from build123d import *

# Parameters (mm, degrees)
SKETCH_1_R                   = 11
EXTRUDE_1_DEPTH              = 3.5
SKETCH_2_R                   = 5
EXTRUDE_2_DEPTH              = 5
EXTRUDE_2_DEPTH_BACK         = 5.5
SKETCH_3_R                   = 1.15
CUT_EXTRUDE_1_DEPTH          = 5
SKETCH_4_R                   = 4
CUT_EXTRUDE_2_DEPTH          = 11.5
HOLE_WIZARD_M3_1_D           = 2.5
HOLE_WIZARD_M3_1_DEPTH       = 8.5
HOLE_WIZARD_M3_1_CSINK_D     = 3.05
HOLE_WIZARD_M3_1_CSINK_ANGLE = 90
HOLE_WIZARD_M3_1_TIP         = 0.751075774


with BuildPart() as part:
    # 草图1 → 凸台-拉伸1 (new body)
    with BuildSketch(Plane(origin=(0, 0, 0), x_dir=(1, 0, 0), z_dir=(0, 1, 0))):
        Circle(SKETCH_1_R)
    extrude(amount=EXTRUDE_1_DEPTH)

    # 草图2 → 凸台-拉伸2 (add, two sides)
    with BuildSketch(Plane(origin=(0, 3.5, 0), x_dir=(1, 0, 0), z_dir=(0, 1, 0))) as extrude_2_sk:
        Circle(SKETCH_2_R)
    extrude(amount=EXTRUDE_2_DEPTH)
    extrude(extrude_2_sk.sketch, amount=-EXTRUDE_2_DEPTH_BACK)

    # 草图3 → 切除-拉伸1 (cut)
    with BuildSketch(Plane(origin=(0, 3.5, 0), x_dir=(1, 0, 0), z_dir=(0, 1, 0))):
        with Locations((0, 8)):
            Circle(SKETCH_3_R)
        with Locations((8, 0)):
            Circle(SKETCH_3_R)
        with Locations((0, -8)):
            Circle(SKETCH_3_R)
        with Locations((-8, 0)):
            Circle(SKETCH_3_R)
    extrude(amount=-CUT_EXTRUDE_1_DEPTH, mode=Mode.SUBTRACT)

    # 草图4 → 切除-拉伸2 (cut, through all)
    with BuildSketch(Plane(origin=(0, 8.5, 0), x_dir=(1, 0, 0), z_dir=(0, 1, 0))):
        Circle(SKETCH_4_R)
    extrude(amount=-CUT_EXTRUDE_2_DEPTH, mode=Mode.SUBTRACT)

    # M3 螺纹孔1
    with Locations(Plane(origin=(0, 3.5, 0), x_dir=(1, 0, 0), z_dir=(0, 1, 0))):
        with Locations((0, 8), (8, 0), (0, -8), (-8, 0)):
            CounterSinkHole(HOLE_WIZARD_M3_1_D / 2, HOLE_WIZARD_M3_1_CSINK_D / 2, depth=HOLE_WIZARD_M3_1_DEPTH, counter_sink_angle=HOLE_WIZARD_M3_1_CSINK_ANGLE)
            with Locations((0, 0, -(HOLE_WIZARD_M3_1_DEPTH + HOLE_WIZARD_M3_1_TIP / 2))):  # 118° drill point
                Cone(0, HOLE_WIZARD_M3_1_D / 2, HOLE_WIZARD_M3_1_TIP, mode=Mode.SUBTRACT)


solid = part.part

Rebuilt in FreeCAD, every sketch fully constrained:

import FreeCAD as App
import Part
import Sketcher

V = App.Vector
Q = App.Units.Quantity

doc = App.newDocument("Part")
body = doc.addObject("PartDesign::Body", "Body")

sketch1 = doc.addObject("Sketcher::SketchObject", "Sketch")
body.addObject(sketch1)
sketch1.AttachmentSupport = (doc.XZ_Plane, [""])
sketch1.MapMode = "FlatFace"
sketch1.addGeometry(Part.Circle(V(0, 0, 0), V(0, 0, 1), 11), False)
sketch1.addConstraint(Sketcher.Constraint("Coincident", 0, 3, -1, 1))
sketch1.addConstraint(Sketcher.Constraint("Diameter", 0, Q("22 mm")))
pad1 = doc.addObject("PartDesign::Pad", "Pad")
body.addObject(pad1)
pad1.Profile = sketch1
pad1.Length = 3.5
pad1.Reversed = True

sketch2 = doc.addObject("Sketcher::SketchObject", "Sketch001")
body.addObject(sketch2)
sketch2.AttachmentSupport = (doc.XZ_Plane, [""])
sketch2.MapMode = "FlatFace"
sketch2.AttachmentOffset = App.Placement(V(0, 0, -3.5), App.Rotation())
sketch2.addGeometry(Part.Circle(V(0, 0, 0), V(0, 0, 1), 5), False)
sketch2.addConstraint(Sketcher.Constraint("Coincident", 0, 3, -1, 1))
sketch2.addConstraint(Sketcher.Constraint("Diameter", 0, Q("10 mm")))
pad2 = doc.addObject("PartDesign::Pad", "Pad001")
body.addObject(pad2)
pad2.Profile = sketch2
pad2.Type = "TwoLengths"
pad2.Length = 5
pad2.Length2 = 5.5
pad2.Reversed = True

sketch3 = doc.addObject("Sketcher::SketchObject", "Sketch002")
body.addObject(sketch3)
sketch3.AttachmentSupport = (doc.XZ_Plane, [""])
sketch3.MapMode = "FlatFace"
sketch3.AttachmentOffset = App.Placement(V(0, 0, -3.5), App.Rotation())
sketch3.addGeometry(Part.Circle(V(0, -8, 0), V(0, 0, 1), 1.1), False)
sketch3.addGeometry(Part.Circle(V(8, 0, 0), V(0, 0, 1), 1.1), False)
sketch3.addGeometry(Part.Circle(V(0, 8, 0), V(0, 0, 1), 1.1), False)
sketch3.addGeometry(Part.Circle(V(-8, 0, 0), V(0, 0, 1), 1.1), False)
sketch3.addConstraint(Sketcher.Constraint("Equal", 0, 1))
sketch3.addConstraint(Sketcher.Constraint("Equal", 1, 2))
sketch3.addConstraint(Sketcher.Constraint("Equal", 2, 3))
sketch3.addConstraint(Sketcher.Constraint("Symmetric", 0, 3, 2, 3, -1, 1))
sketch3.addConstraint(Sketcher.Constraint("Symmetric", 1, 3, 3, 3, -1, 1))
sketch3.addConstraint(Sketcher.Constraint("PointOnObject", 0, 3, -2))
sketch3.addConstraint(Sketcher.Constraint("PointOnObject", 1, 3, -1))
sketch3.addConstraint(Sketcher.Constraint("Diameter", 0, Q("2.3 mm")))
sketch3.addConstraint(Sketcher.Constraint("DistanceY", 0, 3, -1, 1, Q("8 mm")))
sketch3.addConstraint(Sketcher.Constraint("DistanceX", -1, 1, 1, 3, Q("8 mm")))
pocket1 = doc.addObject("PartDesign::Pocket", "Pocket")
body.addObject(pocket1)
pocket1.Profile = sketch3
pocket1.Length = 5
pocket1.Reversed = True

sketch4 = doc.addObject("Sketcher::SketchObject", "Sketch003")
body.addObject(sketch4)
sketch4.AttachmentSupport = (doc.XZ_Plane, [""])
sketch4.MapMode = "FlatFace"
sketch4.AttachmentOffset = App.Placement(V(0, 0, -8.5), App.Rotation())
sketch4.addGeometry(Part.Circle(V(0, 0, 0), V(0, 0, 1), 4), False)
sketch4.addConstraint(Sketcher.Constraint("Coincident", 0, 3, -1, 1))
sketch4.addConstraint(Sketcher.Constraint("Diameter", 0, Q("8 mm")))
pocket2 = doc.addObject("PartDesign::Pocket", "Pocket001")
body.addObject(pocket2)
pocket2.Profile = sketch4
pocket2.Type = "ThroughAll"
pocket2.Reversed = True

sketch5 = doc.addObject("Sketcher::SketchObject", "Sketch004")
body.addObject(sketch5)
sketch5.AttachmentSupport = (doc.XZ_Plane, [""])
sketch5.MapMode = "FlatFace"
sketch5.AttachmentOffset = App.Placement(V(0, 0, -3.5), App.Rotation())
sketch5.addGeometry(Part.Circle(V(0, -8, 0), V(0, 0, 1), 1.2), False)
sketch5.addGeometry(Part.Circle(V(8, 0, 0), V(0, 0, 1), 1.2), False)
sketch5.addGeometry(Part.Circle(V(0, 8, 0), V(0, 0, 1), 1.2), False)
sketch5.addGeometry(Part.Circle(V(-8, 0, 0), V(0, 0, 1), 1.2), False)
sketch5.addConstraint(Sketcher.Constraint("Equal", 0, 1))
sketch5.addConstraint(Sketcher.Constraint("Equal", 1, 2))
sketch5.addConstraint(Sketcher.Constraint("Equal", 2, 3))
sketch5.addConstraint(Sketcher.Constraint("Symmetric", 0, 3, 2, 3, -1, 1))
sketch5.addConstraint(Sketcher.Constraint("Symmetric", 1, 3, 3, 3, -1, 1))
sketch5.addConstraint(Sketcher.Constraint("PointOnObject", 0, 3, -2))
sketch5.addConstraint(Sketcher.Constraint("PointOnObject", 1, 3, -1))
sketch5.addConstraint(Sketcher.Constraint("Diameter", 0, Q("2.5 mm")))
sketch5.addConstraint(Sketcher.Constraint("DistanceY", 0, 3, -1, 1, Q("8 mm")))
sketch5.addConstraint(Sketcher.Constraint("DistanceX", -1, 1, 1, 3, Q("8 mm")))
doc.recompute()
hole = doc.addObject("PartDesign::Hole", "Hole")
body.addObject(hole)
hole.Profile = sketch5
hole.ThreadType = "None"
hole.Diameter = 2.5
hole.DepthType = "Dimension"
hole.Depth = 8.5
hole.DrillPoint = "Angled"
hole.DrillPointAngle = 118
hole.HoleCutType = "Countersink"
hole.HoleCutDiameter = 3.05
hole.HoleCutCountersinkAngle = 90
hole.Reversed = True

doc.recompute()
